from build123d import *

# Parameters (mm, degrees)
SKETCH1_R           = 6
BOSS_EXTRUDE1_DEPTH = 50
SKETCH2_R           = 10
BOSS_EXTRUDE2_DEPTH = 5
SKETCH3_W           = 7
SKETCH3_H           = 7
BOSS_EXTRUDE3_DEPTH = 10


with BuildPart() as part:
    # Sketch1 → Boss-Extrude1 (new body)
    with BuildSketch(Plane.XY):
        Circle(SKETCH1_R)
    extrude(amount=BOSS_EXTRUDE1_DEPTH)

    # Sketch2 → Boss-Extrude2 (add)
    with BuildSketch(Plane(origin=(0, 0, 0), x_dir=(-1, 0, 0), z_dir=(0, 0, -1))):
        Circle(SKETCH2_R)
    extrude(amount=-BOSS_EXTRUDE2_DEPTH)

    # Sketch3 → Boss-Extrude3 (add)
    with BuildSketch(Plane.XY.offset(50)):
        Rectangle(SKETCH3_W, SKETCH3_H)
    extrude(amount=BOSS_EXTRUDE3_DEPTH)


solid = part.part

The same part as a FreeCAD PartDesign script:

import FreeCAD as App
import Part
import Sketcher

V = App.Vector

doc = App.newDocument("Part")
body = doc.addObject("PartDesign::Body", "Body")

# Sketch on XY plane
sketch1 = body.newObject("Sketcher::SketchObject", "Sketch")
sketch1.AttachmentSupport = (doc.getObject("XY_Plane"), [""])
sketch1.MapMode = "FlatFace"
sketch1.addGeometry(Part.Circle(V(0, 0, 0), V(0, 0, 1), 6), False)
sketch1.addConstraint(Sketcher.Constraint("Coincident", 0, 3, -1, 1))
sketch1.addConstraint(Sketcher.Constraint("Diameter", 0, 12.0))
pad1 = body.newObject("PartDesign::Pad", "Pad")
pad1.Profile = sketch1
pad1.Length = 50

# Sketch on XY plane
sketch2 = body.newObject("Sketcher::SketchObject", "Sketch001")
sketch2.AttachmentSupport = (doc.getObject("XY_Plane"), [""])
sketch2.MapMode = "FlatFace"
sketch2.addGeometry(Part.Circle(V(0, 0, 0), V(0, 0, 1), 10), False)
sketch2.addConstraint(Sketcher.Constraint("Coincident", 0, 3, -1, 1))
sketch2.addConstraint(Sketcher.Constraint("Diameter", 0, 20.0))
pad2 = body.newObject("PartDesign::Pad", "Pad001")
pad2.Profile = sketch2
pad2.Length = 5

# Sketch on XY plane
sketch3 = body.newObject("Sketcher::SketchObject", "Sketch002")
sketch3.AttachmentSupport = (doc.getObject("XY_Plane"), [""])
sketch3.MapMode = "FlatFace"
sketch3.AttachmentOffset = App.Placement(V(0, 0, 50), App.Rotation())
sketch3.addGeometry(Part.LineSegment(V(-3.5, 3.5, 0), V(-3.5, -3.5, 0)), False)
sketch3.addGeometry(Part.LineSegment(V(-3.5, -3.5, 0), V(3.5, -3.5, 0)), False)
sketch3.addGeometry(Part.LineSegment(V(3.5, -3.5, 0), V(3.5, 3.5, 0)), False)
sketch3.addGeometry(Part.LineSegment(V(3.5, 3.5, 0), V(-3.5, 3.5, 0)), False)
sketch3.addConstraint(Sketcher.Constraint("Coincident", 0, 2, 1, 1))
sketch3.addConstraint(Sketcher.Constraint("Coincident", 1, 2, 2, 1))
sketch3.addConstraint(Sketcher.Constraint("Coincident", 2, 2, 3, 1))
sketch3.addConstraint(Sketcher.Constraint("Coincident", 3, 2, 0, 1))
sketch3.addConstraint(Sketcher.Constraint("Vertical", 0))
sketch3.addConstraint(Sketcher.Constraint("Horizontal", 1))
sketch3.addConstraint(Sketcher.Constraint("Vertical", 2))
sketch3.addConstraint(Sketcher.Constraint("Horizontal", 3))
sketch3.addConstraint(Sketcher.Constraint("Symmetric", 0, 2, 2, 2, -1, 1))
sketch3.addConstraint(Sketcher.Constraint("Equal", 3, 0))
sketch3.addConstraint(Sketcher.Constraint("DistanceX", 1, 1, 1, 2, 7.0))
pad3 = body.newObject("PartDesign::Pad", "Pad002")
pad3.Profile = sketch3
pad3.Length = 10

doc.recompute()
